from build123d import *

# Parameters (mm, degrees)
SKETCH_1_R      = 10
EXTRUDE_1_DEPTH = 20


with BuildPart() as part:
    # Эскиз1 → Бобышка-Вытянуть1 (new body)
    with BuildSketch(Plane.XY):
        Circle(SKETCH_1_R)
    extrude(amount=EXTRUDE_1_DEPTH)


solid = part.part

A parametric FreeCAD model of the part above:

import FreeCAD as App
import Part
import Sketcher

V = App.Vector

doc = App.newDocument("Part")
body = doc.addObject("PartDesign::Body", "Body")

sketch1 = body.newObject("Sketcher::SketchObject", "Sketch")
sketch1.AttachmentSupport = (doc.getObject("XY_Plane"), [""])
sketch1.MapMode = "FlatFace"
sketch1.addGeometry(Part.Circle(V(0, 0, 0), V(0, 0, 1), 10), False)
sketch1.addConstraint(Sketcher.Constraint("Coincident", 0, 3, -1, 1))
sketch1.addConstraint(Sketcher.Constraint("Diameter", 0, 20.0))
pad1 = body.newObject("PartDesign::Pad", "Pad")
pad1.Profile = sketch1
pad1.Length = 20

doc.recompute()
